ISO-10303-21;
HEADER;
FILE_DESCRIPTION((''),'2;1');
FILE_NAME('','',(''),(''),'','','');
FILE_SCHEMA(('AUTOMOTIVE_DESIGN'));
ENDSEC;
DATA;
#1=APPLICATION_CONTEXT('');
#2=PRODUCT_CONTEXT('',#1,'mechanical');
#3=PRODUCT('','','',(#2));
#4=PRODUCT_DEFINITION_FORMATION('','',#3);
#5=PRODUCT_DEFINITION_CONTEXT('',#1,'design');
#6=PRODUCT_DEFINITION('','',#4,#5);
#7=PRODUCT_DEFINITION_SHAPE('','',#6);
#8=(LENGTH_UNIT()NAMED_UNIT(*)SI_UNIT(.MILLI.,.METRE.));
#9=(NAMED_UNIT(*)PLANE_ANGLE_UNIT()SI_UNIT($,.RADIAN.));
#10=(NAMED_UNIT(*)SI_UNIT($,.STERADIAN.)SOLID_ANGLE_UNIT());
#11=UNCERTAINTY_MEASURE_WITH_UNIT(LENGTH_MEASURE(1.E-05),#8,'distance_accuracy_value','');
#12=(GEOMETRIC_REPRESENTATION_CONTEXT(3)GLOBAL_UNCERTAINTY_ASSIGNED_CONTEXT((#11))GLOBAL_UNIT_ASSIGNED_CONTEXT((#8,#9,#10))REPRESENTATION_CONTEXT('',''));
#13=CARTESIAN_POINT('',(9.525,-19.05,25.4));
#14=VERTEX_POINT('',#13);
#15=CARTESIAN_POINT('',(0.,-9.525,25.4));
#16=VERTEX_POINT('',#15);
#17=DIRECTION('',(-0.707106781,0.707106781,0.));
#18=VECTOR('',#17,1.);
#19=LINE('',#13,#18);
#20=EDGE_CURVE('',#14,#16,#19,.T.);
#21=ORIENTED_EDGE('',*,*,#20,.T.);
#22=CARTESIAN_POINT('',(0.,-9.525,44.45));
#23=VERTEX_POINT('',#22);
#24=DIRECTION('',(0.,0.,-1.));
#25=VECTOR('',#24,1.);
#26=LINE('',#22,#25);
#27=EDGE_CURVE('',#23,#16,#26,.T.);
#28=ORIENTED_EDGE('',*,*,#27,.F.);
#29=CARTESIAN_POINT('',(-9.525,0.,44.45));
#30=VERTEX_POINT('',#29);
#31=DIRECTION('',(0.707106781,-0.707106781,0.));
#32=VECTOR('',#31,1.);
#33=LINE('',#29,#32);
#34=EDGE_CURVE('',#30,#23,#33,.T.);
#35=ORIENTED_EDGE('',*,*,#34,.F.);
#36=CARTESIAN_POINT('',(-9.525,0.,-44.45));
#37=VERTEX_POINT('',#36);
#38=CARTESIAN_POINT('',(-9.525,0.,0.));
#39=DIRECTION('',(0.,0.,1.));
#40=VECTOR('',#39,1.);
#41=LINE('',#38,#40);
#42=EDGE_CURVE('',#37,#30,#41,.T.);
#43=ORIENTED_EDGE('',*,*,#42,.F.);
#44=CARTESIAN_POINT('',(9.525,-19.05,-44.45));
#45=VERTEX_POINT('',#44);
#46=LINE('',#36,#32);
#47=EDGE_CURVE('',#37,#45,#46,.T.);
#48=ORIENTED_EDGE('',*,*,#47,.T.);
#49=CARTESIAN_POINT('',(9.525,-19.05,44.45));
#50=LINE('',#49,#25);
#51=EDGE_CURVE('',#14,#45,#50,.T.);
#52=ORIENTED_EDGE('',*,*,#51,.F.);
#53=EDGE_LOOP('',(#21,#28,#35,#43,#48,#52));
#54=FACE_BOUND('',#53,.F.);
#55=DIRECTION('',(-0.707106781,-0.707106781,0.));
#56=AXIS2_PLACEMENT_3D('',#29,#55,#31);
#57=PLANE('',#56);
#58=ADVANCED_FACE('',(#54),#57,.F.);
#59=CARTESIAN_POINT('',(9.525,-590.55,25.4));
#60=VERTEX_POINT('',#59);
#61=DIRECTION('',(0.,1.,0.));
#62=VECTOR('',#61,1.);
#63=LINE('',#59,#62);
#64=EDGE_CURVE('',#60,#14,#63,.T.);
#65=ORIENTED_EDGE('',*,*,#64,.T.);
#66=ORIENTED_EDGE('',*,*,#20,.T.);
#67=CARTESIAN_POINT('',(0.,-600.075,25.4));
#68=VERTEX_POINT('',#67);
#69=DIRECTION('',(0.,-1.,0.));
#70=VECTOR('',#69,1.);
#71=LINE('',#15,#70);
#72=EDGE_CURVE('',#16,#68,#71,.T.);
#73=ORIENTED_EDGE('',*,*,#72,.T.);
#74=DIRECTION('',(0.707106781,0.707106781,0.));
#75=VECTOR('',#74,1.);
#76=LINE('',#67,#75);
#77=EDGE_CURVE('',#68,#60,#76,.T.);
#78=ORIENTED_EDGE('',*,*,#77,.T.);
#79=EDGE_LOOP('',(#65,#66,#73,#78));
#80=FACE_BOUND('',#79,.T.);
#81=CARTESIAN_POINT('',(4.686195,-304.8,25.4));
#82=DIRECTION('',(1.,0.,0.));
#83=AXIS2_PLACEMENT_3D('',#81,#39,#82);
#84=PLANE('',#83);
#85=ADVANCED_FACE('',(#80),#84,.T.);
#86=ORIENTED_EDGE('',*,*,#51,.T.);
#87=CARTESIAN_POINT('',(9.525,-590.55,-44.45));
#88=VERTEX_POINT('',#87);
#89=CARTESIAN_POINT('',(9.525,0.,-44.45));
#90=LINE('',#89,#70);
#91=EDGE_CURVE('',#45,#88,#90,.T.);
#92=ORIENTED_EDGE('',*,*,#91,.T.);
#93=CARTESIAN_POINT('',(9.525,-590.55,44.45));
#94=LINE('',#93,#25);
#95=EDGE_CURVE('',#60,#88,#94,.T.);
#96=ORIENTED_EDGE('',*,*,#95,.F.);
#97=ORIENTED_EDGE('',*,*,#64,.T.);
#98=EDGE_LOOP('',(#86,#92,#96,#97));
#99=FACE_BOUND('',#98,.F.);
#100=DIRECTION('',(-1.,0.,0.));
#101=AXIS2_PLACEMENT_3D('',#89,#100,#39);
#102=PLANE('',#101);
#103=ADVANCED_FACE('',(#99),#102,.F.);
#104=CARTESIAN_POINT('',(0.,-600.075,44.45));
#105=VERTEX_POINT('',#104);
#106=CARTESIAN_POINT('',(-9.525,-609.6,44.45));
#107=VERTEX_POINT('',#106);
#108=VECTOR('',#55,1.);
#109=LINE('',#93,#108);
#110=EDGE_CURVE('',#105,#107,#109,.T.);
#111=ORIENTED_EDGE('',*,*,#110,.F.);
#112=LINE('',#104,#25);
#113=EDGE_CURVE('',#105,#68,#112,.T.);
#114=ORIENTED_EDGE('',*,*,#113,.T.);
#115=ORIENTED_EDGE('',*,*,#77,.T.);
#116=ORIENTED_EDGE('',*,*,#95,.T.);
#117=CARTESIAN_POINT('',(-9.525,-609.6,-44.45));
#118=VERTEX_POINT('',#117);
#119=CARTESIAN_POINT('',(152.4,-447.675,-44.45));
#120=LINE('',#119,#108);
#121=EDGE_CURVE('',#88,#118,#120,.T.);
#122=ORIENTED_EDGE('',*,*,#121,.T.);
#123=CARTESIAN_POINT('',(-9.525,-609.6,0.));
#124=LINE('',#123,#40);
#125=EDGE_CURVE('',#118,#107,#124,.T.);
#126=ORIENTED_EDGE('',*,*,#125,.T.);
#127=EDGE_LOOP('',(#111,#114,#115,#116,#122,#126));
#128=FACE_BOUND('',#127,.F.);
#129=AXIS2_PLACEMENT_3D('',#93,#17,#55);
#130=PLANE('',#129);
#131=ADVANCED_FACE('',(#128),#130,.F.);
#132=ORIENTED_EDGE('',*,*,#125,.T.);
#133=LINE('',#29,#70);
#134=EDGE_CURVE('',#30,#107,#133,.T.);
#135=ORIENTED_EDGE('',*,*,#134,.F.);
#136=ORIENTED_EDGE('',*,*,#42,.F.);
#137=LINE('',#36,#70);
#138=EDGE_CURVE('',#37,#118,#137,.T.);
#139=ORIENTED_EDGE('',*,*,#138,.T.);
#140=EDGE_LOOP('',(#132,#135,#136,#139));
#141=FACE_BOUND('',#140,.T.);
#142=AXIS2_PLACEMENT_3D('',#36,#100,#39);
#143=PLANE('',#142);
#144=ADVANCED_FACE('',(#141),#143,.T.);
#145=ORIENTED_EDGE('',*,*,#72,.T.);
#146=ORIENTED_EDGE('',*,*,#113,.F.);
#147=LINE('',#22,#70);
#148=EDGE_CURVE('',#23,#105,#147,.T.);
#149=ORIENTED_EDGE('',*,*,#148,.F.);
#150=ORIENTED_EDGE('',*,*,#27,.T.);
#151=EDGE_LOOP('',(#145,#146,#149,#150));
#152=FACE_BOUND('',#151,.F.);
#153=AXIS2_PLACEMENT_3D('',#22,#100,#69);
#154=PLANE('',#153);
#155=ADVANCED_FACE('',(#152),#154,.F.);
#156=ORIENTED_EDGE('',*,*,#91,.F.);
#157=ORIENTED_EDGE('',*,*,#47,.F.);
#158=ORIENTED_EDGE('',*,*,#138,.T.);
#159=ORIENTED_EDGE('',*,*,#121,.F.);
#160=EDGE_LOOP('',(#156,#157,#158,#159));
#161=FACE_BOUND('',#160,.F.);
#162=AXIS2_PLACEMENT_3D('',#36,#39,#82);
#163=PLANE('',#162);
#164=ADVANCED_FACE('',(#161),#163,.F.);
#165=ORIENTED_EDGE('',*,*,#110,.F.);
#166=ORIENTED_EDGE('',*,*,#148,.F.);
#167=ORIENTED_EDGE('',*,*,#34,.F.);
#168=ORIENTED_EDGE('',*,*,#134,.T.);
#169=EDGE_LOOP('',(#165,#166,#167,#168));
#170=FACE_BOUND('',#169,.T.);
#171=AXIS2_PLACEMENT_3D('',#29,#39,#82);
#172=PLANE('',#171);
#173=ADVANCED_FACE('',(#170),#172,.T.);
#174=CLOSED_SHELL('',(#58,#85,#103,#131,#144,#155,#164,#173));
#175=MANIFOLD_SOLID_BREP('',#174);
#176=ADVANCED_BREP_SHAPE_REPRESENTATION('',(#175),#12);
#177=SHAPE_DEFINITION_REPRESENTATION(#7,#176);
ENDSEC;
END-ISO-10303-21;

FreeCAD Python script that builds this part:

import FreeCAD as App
import Part
import Sketcher

V = App.Vector
Q = App.Units.Quantity


def add_polygon(sketch, points):
    """Adds a closed chain of lines whose ends are joined by coincident constraints."""
    first, n = sketch.GeometryCount, len(points)
    for a, b in zip(points, points[1:] + points[:1]):
        sketch.addGeometry(Part.LineSegment(App.Vector(*a, 0), App.Vector(*b, 0)), False)
    for i in range(n):
        sketch.addConstraint(Sketcher.Constraint("Coincident", first + i, 2, first + (i + 1) % n, 1))

doc = App.newDocument("Part")
body = doc.addObject("PartDesign::Body", "Body")

# Sketch on XZ plane
sketch1 = doc.addObject("Sketcher::SketchObject", "Sketch")
body.addObject(sketch1)
sketch1.AttachmentSupport = (doc.XZ_Plane, [""])
sketch1.MapMode = "FlatFace"
add_polygon(sketch1, [(-10, 44), (-10, -44), (10, -44), (10, 44)])  # lines 0-3
sketch1.addConstraint([
    Sketcher.Constraint("Vertical", 0),
    Sketcher.Constraint("Horizontal", 1),
    Sketcher.Constraint("Vertical", 2),
    Sketcher.Constraint("Horizontal", 3),
    Sketcher.Constraint("Symmetric", 0, 2, 2, 2, -1, 1),
    Sketcher.Constraint("DistanceY", 0, 2, 0, 1, Q("3.5 in")),
    Sketcher.Constraint("DistanceX", 1, 1, 1, 2, Q("0.75 in")),
])
pad1 = doc.addObject("PartDesign::Pad", "Pad")
body.addObject(pad1)
pad1.Profile = sketch1
pad1.Length = Q("24 in")

# Sketch on XY plane
sketch2 = doc.addObject("Sketcher::SketchObject", "Sketch001")
body.addObject(sketch2)
sketch2.AttachmentSupport = (doc.XY_Plane, [""])
sketch2.MapMode = "FlatFace"
sketch2.AttachmentOffset = App.Placement(V(0, 0, 1.75 * 25.4), App.Rotation())
add_polygon(sketch2, [(10, -591), (-10, -610), (10, -610)])  # lines 0-2
add_polygon(sketch2, [(10, 0), (-10, 0), (10, -19)])  # lines 3-5
sketch2.addConstraint([
    Sketcher.Constraint("Horizontal", 1),
    Sketcher.Constraint("Vertical", 2),
    Sketcher.Constraint("Horizontal", 3),
    Sketcher.Constraint("Vertical", 5),
    Sketcher.Constraint("Symmetric", 3, 2, 5, 2, -1, 1),
    Sketcher.Constraint("Perpendicular", 0, 4),
    Sketcher.Constraint("Vertical", 0, 2, 3, 2),
    Sketcher.Constraint("Vertical", 2, 2, 4, 2),
    Sketcher.Constraint("Equal", 3, 2),
    Sketcher.Constraint("DistanceY", 0, 2, -1, 1, Q("24 in")),
    Sketcher.Constraint("DistanceX", 1, 1, 1, 2, Q("0.75 in")),
])
pocket1 = doc.addObject("PartDesign::Pocket", "Pocket")
body.addObject(pocket1)
pocket1.Profile = sketch2
pocket1.Type = "ThroughAll"

# Sketch on XY plane
sketch3 = doc.addObject("Sketcher::SketchObject", "Sketch002")
body.addObject(sketch3)
sketch3.AttachmentSupport = (doc.XY_Plane, [""])
sketch3.MapMode = "FlatFace"
sketch3.AttachmentOffset = App.Placement(V(0, 0, 1.75 * 25.4), App.Rotation())
add_polygon(sketch3, [(0, -10), (0, -600), (10, -591), (10, -19)])  # lines 0-3
sketch3.addConstraint([
    Sketcher.Constraint("Vertical", 0),
    Sketcher.Constraint("Vertical", 2),
    Sketcher.Constraint("PointOnObject", 0, 2, -2),
    Sketcher.Constraint("Perpendicular", 1, 3),
    Sketcher.Constraint("Equal", 1, 3),
    Sketcher.Constraint("DistanceY", 2, 1, 2, 2, Q("22.5 in")),
    Sketcher.Constraint("DistanceY", 0, 2, 0, 1, Q("23.25 in")),
    Sketcher.Constraint("DistanceY", 1, 2, -1, 1, Q("23.25 in")),
])
pocket2 = doc.addObject("PartDesign::Pocket", "Pocket001")
body.addObject(pocket2)
pocket2.Profile = sketch3
pocket2.Length = Q("0.75 in")

doc.recompute()
